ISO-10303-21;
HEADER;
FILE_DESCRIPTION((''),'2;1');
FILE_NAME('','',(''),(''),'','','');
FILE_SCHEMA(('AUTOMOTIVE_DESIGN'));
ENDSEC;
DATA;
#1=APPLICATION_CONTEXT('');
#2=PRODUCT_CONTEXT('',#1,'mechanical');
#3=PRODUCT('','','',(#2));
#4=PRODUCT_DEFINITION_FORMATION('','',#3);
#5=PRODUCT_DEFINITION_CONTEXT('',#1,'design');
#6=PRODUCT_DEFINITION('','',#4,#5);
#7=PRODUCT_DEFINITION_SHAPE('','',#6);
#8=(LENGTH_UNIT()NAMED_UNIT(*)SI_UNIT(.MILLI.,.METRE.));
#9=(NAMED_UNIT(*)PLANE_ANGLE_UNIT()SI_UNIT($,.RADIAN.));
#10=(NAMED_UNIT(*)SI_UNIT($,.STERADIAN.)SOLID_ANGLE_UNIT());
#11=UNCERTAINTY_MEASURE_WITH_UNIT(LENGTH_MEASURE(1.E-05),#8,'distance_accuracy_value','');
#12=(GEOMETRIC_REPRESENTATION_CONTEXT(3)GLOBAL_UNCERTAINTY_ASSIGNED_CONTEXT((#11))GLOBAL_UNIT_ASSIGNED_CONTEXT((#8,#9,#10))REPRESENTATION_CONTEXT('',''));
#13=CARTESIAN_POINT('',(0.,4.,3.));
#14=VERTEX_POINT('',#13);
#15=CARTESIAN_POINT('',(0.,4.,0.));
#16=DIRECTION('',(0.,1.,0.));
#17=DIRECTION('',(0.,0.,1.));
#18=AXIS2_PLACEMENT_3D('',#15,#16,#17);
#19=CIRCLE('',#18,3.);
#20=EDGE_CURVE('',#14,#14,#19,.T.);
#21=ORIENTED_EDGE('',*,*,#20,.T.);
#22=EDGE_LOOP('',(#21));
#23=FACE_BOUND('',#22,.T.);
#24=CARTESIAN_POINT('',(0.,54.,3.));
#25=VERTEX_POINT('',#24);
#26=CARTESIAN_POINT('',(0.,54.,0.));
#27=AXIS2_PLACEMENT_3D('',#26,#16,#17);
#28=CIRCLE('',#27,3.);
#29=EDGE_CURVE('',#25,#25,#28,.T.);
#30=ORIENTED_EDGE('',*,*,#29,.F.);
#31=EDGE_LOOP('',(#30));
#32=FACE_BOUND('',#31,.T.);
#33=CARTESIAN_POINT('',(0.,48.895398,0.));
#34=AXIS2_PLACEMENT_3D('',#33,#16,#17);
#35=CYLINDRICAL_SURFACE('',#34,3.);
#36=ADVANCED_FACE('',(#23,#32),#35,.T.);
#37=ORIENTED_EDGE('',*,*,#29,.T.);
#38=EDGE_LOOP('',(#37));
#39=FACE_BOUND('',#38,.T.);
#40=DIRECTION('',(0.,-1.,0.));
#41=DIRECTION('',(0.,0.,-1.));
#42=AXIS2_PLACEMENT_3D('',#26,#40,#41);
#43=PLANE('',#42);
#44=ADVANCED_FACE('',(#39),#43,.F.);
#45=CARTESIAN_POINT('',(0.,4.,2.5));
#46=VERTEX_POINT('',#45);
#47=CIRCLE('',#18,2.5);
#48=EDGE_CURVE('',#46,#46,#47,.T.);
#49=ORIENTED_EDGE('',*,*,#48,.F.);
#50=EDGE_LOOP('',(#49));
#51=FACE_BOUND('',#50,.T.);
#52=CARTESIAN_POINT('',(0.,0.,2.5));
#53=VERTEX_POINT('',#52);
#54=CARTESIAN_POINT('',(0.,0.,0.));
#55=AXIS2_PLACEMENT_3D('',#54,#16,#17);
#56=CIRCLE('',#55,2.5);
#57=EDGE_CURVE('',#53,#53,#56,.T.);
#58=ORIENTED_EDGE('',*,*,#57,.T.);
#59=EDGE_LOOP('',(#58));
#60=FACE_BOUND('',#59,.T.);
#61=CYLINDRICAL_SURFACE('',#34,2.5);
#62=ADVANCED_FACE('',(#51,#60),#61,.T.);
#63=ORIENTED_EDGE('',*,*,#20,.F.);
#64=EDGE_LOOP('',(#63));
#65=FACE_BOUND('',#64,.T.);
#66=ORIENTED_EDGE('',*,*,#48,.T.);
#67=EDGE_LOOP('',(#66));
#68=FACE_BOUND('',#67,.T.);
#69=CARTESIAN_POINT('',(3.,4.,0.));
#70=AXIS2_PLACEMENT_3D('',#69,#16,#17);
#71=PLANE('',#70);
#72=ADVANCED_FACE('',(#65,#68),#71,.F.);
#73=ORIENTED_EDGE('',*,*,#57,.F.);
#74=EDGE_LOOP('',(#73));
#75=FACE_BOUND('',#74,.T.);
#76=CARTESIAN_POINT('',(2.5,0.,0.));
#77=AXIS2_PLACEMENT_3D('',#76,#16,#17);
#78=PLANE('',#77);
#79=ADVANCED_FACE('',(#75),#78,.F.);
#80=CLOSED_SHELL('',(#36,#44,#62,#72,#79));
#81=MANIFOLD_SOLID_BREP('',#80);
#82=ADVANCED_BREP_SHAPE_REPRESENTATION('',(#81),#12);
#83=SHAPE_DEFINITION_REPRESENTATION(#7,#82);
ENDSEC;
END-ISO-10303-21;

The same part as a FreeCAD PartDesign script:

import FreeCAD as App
import Part
import Sketcher

V = App.Vector
Q = App.Units.Quantity

doc = App.newDocument("Part")
body = doc.addObject("PartDesign::Body", "Body")

# Sketch on XY plane
sketch1 = body.newObject("Sketcher::SketchObject", "Sketch")
sketch1.AttachmentSupport = (doc.getObject("XY_Plane"), [""])
sketch1.MapMode = "FlatFace"
sketch1.addGeometry([
    Part.LineSegment(V(3, 54, 0), V(0, 54, 0)),  # 0
    Part.LineSegment(V(0, 54, 0), V(0, 0, 0)),  # 1
    Part.LineSegment(V(0, 0, 0), V(2.5, 0, 0)),  # 2
    Part.LineSegment(V(2.5, 0, 0), V(2.5, 4, 0)),  # 3
    Part.LineSegment(V(2.5, 4, 0), V(3, 4, 0)),  # 4
    Part.LineSegment(V(3, 4, 0), V(3, 54, 0)),  # 5
], False)
sketch1.addConstraint([
    Sketcher.Constraint("Coincident", 0, 2, 1, 1),
    Sketcher.Constraint("Coincident", 1, 2, 2, 1),
    Sketcher.Constraint("Coincident", 2, 2, 3, 1),
    Sketcher.Constraint("Coincident", 3, 2, 4, 1),
    Sketcher.Constraint("Coincident", 4, 2, 5, 1),
    Sketcher.Constraint("Coincident", 5, 2, 0, 1),
    Sketcher.Constraint("Horizontal", 0),
    Sketcher.Constraint("Vertical", 1),
    Sketcher.Constraint("Horizontal", 2),
    Sketcher.Constraint("Vertical", 3),
    Sketcher.Constraint("Horizontal", 4),
    Sketcher.Constraint("Vertical", 5),
    Sketcher.Constraint("Coincident", 1, 2, -1, 1),
    Sketcher.Constraint("DistanceX", 0, 2, 0, 1, Q("3 mm")),
    Sketcher.Constraint("DistanceY", 1, 2, 1, 1, Q("54 mm")),
    Sketcher.Constraint("DistanceY", 3, 1, 3, 2, Q("4 mm")),
    Sketcher.Constraint("DistanceX", 2, 1, 2, 2, Q("2.5 mm")),
])
revolution = body.newObject("PartDesign::Revolution", "Revolution")
revolution.Profile = sketch1
revolution.ReferenceAxis = (sketch1, ["V_Axis"])
revolution.Angle = 360

doc.recompute()
